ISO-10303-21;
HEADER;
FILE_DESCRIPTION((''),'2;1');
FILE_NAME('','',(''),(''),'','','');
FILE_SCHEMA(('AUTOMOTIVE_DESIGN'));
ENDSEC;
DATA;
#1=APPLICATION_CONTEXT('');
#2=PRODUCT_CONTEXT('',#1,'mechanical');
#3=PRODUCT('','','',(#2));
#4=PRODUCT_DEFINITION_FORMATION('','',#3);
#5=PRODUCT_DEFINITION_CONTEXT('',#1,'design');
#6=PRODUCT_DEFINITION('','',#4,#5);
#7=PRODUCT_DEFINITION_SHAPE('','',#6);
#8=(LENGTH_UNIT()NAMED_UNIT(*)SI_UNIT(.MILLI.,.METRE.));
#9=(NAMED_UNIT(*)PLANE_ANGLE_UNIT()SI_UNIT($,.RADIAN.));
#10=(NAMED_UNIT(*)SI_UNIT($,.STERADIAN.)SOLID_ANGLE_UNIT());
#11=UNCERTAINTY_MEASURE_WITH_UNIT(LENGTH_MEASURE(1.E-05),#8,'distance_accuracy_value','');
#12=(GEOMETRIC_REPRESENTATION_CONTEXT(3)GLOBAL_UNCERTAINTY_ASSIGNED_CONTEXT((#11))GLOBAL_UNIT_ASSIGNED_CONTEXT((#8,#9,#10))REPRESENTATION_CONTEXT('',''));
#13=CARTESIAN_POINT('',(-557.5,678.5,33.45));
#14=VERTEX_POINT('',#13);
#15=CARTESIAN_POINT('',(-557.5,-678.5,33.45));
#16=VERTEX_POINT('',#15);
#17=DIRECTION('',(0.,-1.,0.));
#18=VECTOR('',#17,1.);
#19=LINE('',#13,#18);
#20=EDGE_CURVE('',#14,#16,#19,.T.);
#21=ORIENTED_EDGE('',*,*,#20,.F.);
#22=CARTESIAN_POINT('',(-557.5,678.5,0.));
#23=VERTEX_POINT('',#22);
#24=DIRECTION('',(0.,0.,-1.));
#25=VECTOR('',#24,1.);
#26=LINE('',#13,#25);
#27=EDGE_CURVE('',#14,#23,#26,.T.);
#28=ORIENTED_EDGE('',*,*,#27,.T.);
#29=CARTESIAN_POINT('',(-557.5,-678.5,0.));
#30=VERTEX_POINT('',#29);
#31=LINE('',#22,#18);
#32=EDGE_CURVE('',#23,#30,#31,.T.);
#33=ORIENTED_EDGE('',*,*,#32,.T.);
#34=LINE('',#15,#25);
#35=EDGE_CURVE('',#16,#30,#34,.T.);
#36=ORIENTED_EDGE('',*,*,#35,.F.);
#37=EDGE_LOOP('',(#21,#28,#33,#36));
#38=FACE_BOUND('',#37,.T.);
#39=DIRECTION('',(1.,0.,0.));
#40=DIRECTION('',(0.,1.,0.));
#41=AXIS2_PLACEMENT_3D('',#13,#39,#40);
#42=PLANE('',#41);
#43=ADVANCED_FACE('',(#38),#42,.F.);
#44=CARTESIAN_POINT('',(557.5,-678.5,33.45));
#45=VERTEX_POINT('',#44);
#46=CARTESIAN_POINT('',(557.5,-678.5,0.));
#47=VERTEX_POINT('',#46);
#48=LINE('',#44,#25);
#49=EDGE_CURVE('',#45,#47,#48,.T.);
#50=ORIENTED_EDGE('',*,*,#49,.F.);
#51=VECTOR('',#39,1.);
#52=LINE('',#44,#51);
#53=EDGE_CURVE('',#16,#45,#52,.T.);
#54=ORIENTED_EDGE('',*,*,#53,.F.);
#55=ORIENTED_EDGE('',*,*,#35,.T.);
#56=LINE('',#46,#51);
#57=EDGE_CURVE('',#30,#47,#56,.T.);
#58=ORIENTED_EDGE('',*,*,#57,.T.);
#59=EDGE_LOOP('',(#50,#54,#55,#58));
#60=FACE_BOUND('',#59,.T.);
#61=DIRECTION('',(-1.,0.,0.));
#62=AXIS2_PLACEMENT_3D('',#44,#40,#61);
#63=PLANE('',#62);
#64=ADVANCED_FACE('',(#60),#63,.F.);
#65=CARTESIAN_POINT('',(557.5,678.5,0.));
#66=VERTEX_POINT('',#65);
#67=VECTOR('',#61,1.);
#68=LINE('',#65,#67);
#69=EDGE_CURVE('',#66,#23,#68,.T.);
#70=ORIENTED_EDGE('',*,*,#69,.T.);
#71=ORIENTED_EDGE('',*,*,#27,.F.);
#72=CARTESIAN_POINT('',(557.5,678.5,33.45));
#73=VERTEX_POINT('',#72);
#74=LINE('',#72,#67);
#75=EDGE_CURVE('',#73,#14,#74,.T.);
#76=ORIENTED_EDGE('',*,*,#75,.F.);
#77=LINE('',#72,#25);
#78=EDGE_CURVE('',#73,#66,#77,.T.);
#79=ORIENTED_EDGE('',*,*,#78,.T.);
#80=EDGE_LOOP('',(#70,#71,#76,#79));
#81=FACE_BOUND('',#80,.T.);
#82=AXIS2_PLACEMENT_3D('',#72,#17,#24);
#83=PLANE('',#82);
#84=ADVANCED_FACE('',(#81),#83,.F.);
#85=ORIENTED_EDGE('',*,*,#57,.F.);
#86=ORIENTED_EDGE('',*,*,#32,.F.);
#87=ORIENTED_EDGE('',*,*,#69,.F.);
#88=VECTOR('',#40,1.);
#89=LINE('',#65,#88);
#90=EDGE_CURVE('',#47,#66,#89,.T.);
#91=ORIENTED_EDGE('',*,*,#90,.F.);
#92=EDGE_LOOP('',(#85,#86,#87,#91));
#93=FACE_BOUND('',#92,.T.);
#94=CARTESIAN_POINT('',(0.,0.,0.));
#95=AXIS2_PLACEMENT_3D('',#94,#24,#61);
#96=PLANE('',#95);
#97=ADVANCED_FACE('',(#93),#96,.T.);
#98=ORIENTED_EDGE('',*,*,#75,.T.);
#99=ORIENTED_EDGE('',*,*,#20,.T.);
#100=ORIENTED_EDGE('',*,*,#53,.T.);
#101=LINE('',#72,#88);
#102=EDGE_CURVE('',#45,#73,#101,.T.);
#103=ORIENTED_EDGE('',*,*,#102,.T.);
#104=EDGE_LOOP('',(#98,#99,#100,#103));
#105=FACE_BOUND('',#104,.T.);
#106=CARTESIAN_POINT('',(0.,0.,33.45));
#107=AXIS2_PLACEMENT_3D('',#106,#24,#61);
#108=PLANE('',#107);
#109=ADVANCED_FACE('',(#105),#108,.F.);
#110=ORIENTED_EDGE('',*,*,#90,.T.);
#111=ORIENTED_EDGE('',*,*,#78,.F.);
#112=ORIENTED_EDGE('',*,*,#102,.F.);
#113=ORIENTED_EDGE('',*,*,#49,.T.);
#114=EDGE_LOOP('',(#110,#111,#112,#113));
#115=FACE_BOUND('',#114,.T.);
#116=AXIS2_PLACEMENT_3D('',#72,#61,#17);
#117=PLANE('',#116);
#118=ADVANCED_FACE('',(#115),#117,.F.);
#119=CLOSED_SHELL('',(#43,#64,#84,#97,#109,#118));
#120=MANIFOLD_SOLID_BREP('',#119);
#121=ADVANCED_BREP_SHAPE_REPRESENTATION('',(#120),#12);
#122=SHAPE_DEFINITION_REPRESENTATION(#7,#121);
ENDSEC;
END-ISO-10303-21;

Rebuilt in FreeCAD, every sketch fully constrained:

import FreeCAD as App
import Part
import Sketcher
Q = App.Units.Quantity


def add_polygon(sketch, points):
    """Adds a closed chain of lines whose ends are joined by coincident constraints."""
    first, n = sketch.GeometryCount, len(points)
    for a, b in zip(points, points[1:] + points[:1]):
        sketch.addGeometry(Part.LineSegment(App.Vector(*a, 0), App.Vector(*b, 0)), False)
    for i in range(n):
        sketch.addConstraint(Sketcher.Constraint("Coincident", first + i, 2, first + (i + 1) % n, 1))

doc = App.newDocument("Part")
body = doc.addObject("PartDesign::Body", "Body")

# Sketch on XY plane
sketch1 = body.newObject("Sketcher::SketchObject", "Sketch")
sketch1.AttachmentSupport = (doc.getObject("XY_Plane"), [""])
sketch1.MapMode = "FlatFace"
add_polygon(sketch1, [(-557.5, 678.5), (-557.5, -678.5), (557.5, -678.5), (557.5, 678.5)])  # lines 0-3
sketch1.addConstraint([
    Sketcher.Constraint("Vertical", 0),
    Sketcher.Constraint("Horizontal", 1),
    Sketcher.Constraint("Vertical", 2),
    Sketcher.Constraint("Horizontal", 3),
    Sketcher.Constraint("Symmetric", 0, 2, 2, 2, -1, 1),
    Sketcher.Constraint("DistanceX", 1, 1, 1, 2, Q("1115 mm")),
    Sketcher.Constraint("DistanceY", 0, 2, 0, 1, Q("1357 mm")),
])
pad1 = body.newObject("PartDesign::Pad", "Pad")
pad1.Profile = sketch1
pad1.Length = 33.45

doc.recompute()
